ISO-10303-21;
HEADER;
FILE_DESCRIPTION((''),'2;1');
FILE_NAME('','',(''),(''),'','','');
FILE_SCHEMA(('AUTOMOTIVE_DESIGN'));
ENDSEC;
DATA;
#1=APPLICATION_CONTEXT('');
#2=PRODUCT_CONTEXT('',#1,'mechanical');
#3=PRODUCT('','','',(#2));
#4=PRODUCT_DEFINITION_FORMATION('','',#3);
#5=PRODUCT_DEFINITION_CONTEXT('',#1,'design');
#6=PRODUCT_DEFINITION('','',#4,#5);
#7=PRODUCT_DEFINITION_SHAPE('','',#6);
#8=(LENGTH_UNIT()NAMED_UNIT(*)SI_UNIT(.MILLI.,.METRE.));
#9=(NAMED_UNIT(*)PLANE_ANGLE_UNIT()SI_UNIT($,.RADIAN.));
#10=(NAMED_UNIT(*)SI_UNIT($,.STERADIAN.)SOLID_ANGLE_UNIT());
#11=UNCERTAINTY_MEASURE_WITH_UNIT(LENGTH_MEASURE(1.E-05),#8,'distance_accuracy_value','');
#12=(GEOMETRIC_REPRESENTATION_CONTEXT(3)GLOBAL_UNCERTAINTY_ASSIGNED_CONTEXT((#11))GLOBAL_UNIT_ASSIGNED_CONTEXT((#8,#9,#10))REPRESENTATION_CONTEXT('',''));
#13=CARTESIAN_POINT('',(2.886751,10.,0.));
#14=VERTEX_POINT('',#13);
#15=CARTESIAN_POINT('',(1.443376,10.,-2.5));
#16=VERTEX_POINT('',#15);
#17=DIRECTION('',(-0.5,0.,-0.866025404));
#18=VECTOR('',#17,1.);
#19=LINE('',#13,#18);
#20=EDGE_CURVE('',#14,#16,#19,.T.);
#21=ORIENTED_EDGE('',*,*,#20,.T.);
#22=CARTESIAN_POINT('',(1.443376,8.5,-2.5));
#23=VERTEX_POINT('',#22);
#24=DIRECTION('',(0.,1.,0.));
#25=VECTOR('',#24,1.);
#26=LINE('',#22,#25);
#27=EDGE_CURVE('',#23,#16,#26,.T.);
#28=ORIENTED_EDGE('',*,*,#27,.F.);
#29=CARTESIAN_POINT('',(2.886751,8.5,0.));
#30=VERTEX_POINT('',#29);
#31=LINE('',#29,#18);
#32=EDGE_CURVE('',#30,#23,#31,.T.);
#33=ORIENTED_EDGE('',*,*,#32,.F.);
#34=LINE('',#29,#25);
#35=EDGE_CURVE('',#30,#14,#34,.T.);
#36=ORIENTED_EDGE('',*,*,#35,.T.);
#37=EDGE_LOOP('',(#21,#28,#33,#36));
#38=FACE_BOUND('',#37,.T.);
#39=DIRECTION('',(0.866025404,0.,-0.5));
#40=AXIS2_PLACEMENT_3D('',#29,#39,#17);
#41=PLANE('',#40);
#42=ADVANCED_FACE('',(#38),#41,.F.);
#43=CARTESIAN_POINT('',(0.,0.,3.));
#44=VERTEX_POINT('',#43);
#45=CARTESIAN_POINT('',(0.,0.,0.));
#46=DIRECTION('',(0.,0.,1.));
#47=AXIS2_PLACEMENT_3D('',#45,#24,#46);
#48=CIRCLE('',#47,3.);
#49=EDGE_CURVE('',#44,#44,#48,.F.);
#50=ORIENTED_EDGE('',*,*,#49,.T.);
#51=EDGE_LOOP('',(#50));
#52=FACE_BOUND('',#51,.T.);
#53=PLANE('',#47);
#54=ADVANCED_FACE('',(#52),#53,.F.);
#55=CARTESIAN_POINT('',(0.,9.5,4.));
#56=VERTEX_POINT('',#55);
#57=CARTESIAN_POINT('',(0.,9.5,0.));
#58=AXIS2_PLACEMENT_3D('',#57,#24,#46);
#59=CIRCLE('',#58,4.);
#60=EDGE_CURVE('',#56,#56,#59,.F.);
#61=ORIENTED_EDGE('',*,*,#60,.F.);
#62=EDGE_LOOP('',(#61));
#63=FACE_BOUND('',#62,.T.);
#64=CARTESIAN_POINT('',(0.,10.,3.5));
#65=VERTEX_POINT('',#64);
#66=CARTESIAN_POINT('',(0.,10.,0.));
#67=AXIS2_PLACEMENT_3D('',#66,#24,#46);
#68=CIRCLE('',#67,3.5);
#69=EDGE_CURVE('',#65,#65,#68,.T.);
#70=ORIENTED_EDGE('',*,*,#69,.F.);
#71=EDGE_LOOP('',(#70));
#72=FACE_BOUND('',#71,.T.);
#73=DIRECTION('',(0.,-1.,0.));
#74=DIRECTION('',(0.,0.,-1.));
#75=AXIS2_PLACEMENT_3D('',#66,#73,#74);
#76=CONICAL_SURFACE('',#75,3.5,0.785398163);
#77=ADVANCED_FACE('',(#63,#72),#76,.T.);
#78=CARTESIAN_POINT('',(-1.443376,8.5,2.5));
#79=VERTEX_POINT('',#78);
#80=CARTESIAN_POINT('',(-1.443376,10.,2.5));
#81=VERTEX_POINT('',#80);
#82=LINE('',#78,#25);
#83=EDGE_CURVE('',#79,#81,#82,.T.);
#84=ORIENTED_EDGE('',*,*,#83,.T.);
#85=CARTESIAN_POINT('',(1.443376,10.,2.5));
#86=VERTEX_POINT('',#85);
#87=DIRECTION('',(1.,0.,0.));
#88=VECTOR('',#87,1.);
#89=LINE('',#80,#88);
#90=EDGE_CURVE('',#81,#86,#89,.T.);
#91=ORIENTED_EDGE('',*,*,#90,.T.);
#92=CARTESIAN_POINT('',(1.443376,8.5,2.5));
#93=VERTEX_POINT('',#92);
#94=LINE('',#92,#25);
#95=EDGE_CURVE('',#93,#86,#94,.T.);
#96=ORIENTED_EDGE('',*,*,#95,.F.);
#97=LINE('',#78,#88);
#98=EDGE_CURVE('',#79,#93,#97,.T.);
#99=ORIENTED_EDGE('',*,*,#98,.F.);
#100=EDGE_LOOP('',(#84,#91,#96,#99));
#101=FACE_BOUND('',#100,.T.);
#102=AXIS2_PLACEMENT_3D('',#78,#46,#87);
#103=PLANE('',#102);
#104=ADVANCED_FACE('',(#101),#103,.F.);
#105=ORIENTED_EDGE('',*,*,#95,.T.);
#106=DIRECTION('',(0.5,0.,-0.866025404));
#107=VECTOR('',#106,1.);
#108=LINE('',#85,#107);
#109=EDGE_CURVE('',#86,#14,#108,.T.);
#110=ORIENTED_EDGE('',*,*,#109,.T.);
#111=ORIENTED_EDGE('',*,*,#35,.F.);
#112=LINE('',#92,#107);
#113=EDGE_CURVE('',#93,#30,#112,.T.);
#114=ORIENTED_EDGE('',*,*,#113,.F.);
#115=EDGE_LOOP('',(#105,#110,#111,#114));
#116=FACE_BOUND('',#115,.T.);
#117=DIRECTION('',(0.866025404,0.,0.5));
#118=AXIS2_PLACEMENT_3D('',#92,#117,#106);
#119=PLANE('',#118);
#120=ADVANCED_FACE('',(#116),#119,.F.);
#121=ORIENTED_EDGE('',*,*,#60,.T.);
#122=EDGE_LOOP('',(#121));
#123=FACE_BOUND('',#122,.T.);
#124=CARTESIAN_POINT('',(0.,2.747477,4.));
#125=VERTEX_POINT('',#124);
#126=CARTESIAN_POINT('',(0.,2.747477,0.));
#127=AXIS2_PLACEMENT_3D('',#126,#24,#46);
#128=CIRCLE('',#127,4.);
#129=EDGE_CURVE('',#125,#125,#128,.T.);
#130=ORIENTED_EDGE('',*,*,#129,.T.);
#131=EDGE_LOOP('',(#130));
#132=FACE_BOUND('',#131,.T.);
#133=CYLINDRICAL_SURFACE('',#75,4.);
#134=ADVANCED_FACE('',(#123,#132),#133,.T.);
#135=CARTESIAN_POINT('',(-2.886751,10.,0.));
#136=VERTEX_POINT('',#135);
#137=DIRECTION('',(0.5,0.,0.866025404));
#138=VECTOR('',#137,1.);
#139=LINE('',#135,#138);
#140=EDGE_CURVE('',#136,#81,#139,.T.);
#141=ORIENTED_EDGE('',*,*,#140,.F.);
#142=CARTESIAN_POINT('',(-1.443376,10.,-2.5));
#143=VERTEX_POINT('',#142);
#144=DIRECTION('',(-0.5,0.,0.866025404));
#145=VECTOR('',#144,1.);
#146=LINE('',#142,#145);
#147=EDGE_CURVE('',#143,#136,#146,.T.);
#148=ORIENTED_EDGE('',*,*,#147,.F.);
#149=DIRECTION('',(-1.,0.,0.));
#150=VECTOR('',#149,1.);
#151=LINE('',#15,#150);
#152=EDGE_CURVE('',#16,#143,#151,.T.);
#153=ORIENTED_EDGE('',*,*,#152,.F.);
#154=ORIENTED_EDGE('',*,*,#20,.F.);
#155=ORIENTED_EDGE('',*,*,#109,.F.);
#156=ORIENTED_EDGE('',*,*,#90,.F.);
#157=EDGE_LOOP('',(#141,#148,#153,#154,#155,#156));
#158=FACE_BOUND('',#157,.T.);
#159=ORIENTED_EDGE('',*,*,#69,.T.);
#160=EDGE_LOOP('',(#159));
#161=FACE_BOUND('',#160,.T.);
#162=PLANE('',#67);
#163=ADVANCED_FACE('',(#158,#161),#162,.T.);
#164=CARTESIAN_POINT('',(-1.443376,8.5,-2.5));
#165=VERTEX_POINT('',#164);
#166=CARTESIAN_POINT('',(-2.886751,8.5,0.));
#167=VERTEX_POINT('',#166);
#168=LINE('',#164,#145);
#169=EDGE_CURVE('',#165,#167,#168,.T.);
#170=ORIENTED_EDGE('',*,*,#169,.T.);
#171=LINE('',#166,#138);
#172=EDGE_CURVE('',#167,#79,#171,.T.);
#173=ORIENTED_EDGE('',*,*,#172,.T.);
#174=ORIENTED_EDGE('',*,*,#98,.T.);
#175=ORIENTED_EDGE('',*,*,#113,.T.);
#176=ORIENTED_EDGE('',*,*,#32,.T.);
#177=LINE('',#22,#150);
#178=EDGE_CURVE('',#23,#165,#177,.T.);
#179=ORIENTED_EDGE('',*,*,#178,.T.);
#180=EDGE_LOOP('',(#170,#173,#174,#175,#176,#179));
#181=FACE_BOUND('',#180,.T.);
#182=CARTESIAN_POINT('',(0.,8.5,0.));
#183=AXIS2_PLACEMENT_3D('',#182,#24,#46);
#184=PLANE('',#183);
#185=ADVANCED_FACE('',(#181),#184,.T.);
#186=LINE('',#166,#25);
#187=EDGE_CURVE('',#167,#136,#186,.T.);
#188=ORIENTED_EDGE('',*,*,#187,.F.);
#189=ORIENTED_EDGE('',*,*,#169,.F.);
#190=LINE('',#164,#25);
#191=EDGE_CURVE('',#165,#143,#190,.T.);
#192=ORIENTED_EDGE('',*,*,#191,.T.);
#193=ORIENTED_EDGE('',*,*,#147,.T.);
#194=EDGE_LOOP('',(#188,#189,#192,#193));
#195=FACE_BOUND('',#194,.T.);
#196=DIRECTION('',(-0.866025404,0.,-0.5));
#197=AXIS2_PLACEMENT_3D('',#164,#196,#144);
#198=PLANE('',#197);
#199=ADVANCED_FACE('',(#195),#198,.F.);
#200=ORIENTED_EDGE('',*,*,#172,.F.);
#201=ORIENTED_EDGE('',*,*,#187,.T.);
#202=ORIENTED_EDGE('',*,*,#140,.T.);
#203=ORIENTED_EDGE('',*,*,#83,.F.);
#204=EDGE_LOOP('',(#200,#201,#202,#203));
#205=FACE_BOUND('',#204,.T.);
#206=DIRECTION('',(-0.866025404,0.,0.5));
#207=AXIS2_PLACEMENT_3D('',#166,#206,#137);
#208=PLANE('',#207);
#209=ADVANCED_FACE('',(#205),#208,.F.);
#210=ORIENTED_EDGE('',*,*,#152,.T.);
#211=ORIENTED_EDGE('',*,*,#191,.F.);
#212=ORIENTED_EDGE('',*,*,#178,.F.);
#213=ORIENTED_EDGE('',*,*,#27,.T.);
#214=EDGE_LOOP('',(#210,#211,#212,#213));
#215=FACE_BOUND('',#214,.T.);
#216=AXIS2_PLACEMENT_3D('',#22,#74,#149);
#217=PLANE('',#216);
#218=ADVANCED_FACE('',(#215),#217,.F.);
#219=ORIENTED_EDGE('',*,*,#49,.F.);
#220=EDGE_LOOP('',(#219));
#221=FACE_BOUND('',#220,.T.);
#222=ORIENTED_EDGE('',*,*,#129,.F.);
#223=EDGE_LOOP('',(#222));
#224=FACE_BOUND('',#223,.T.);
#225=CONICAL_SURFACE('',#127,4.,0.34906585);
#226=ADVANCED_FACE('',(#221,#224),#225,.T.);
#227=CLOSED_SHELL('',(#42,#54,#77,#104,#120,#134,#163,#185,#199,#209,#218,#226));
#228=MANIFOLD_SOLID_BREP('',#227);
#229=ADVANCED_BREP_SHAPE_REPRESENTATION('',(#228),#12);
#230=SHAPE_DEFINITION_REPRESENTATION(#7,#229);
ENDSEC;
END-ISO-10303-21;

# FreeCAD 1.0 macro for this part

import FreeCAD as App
import Part
import Sketcher
Q = App.Units.Quantity


def edges_at(feature, points):
    """Names of the edges that pass closest to the given points."""
    edges = feature.Shape.Edges
    near = lambda p: min(range(len(edges)), key=lambda i: edges[i].distToShape(Part.Vertex(*p))[0])
    return sorted({f"Edge{near(p) + 1}" for p in points})

doc = App.newDocument("Part")
body = doc.addObject("PartDesign::Body", "Body")

sketch1 = doc.addObject("Sketcher::SketchObject", "Sketch")
body.addObject(sketch1)
sketch1.AttachmentSupport = (doc.XZ_Plane, [""])
sketch1.MapMode = "FlatFace"
sketch1.addGeometry(Part.Circle(App.Vector(0, 0, 0), App.Vector(0, 0, 1), 4), False)
sketch1.addConstraint([
    Sketcher.Constraint("Coincident", 0, 3, -1, 1),
    Sketcher.Constraint("Diameter", 0, 8.0),
])
pad1 = doc.addObject("PartDesign::Pad", "Pad")
body.addObject(pad1)
pad1.Profile = sketch1
pad1.Length = 10
pad1.Reversed = True

sketch2 = doc.addObject("Sketcher::SketchObject", "Sketch001")
body.addObject(sketch2)
sketch2.AttachmentSupport = (doc.XZ_Plane, [""])
sketch2.MapMode = "FlatFace"
sketch2.AttachmentOffset = App.Placement(App.Vector(0, 0, -10), App.Rotation())
sketch2.addGeometry([
    Part.LineSegment(App.Vector(2.9, 0, 0), App.Vector(1.4, -2.5, 0)),
    Part.LineSegment(App.Vector(1.4, -2.5, 0), App.Vector(-1.4, -2.5, 0)),
    Part.LineSegment(App.Vector(-1.4, -2.5, 0), App.Vector(-2.9, 0, 0)),
    Part.LineSegment(App.Vector(-2.9, 0, 0), App.Vector(-1.4, 2.5, 0)),
    Part.LineSegment(App.Vector(-1.4, 2.5, 0), App.Vector(1.4, 2.5, 0)),
    Part.LineSegment(App.Vector(1.4, 2.5, 0), App.Vector(2.9, 0, 0)),
], False)
sketch2.addConstraint([
    Sketcher.Constraint("Coincident", 0, 2, 1, 1),
    Sketcher.Constraint("Coincident", 1, 2, 2, 1),
    Sketcher.Constraint("Coincident", 2, 2, 3, 1),
    Sketcher.Constraint("Coincident", 3, 2, 4, 1),
    Sketcher.Constraint("Coincident", 4, 2, 5, 1),
    Sketcher.Constraint("Coincident", 5, 2, 0, 1),
    Sketcher.Constraint("Horizontal", 1),
    Sketcher.Constraint("Horizontal", 4),
    Sketcher.Constraint("Symmetric", 0, 2, 3, 2, -1, 1),
    Sketcher.Constraint("Symmetric", 2, 2, 5, 2, -1, 1),
    Sketcher.Constraint("PointOnObject", 2, 2, -1),
    Sketcher.Constraint("Parallel", 2, 5),
    Sketcher.Constraint("Vertical", 1, 2, 3, 2),
    Sketcher.Constraint("Angle", 0, Q("-120 deg")),
    Sketcher.Constraint("DistanceY", 1, 2, 3, 2, 5.0),
    Sketcher.Constraint("DistanceX", 1, 2, 1, 1, 2.886751),
])
pocket1 = doc.addObject("PartDesign::Pocket", "Pocket")
body.addObject(pocket1)
pocket1.Profile = sketch2
pocket1.Length = 1.5
pocket1.Reversed = True
doc.recompute()

chamfer = doc.addObject("PartDesign::Chamfer", "Chamfer")
body.addObject(chamfer)
chamfer.Base = (pocket1, edges_at(pocket1, [(0, 10, -4)]))
chamfer.Size = 0.5
doc.recompute()

chamfer2 = doc.addObject("PartDesign::Chamfer", "Chamfer001")
body.addObject(chamfer2)
chamfer2.Base = (chamfer, edges_at(chamfer, [(0, 0, -4)]))
chamfer2.ChamferType = "Two distances"
chamfer2.Size = 1
chamfer2.Size2 = 2.747477
chamfer2.FlipDirection = True

doc.recompute()
